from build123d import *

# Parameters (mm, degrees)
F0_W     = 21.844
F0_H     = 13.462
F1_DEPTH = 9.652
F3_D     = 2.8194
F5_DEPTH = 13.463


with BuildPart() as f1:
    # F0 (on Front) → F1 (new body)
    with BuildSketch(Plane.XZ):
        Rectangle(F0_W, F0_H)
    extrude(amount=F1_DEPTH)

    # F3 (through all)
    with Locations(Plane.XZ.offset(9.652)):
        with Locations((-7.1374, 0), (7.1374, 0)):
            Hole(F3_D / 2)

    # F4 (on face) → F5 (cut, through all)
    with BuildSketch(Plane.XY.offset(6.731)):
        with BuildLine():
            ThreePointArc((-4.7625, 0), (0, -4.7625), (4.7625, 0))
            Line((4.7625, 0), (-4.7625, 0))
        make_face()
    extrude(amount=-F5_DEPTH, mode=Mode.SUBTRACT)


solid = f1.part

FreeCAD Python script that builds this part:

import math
import FreeCAD as App
import Part
import Sketcher
Q = App.Units.Quantity


def add_polygon(sketch, points):
    """Adds a closed chain of lines whose ends are joined by coincident constraints."""
    first, n = sketch.GeometryCount, len(points)
    for a, b in zip(points, points[1:] + points[:1]):
        sketch.addGeometry(Part.LineSegment(App.Vector(*a, 0), App.Vector(*b, 0)), False)
    for i in range(n):
        sketch.addConstraint(Sketcher.Constraint("Coincident", first + i, 2, first + (i + 1) % n, 1))

doc = App.newDocument("Part")
body = doc.addObject("PartDesign::Body", "Body")

sketch1 = body.newObject("Sketcher::SketchObject", "Sketch")
sketch1.AttachmentSupport = (doc.getObject("XZ_Plane"), [""])
sketch1.MapMode = "FlatFace"
add_polygon(sketch1, [(-10.922, 6.731), (-10.922, -6.731), (10.922, -6.731), (10.922, 6.731)])
sketch1.addConstraint([
    Sketcher.Constraint("Vertical", 0),
    Sketcher.Constraint("Horizontal", 1),
    Sketcher.Constraint("Vertical", 2),
    Sketcher.Constraint("Horizontal", 3),
    Sketcher.Constraint("Symmetric", 0, 2, 2, 2, -1, 1),
    Sketcher.Constraint("DistanceX", 1, 1, 1, 2, Q("0.86 in")),
    Sketcher.Constraint("DistanceY", 0, 2, 0, 1, Q("0.53 in")),
])
pad1 = body.newObject("PartDesign::Pad", "Pad")
pad1.Profile = sketch1
pad1.Length = Q("0.38 in")

sketch2 = body.newObject("Sketcher::SketchObject", "Sketch001")
sketch2.AttachmentSupport = (doc.getObject("XZ_Plane"), [""])
sketch2.MapMode = "FlatFace"
sketch2.AttachmentOffset = App.Placement(App.Vector(0, 0, 0.38 * 25.4), App.Rotation())
sketch2.addGeometry([
    Part.Circle(App.Vector(-7.1374, 0, 0), App.Vector(0, 0, 1), 1.4097),
    Part.Circle(App.Vector(7.1374, 0, 0), App.Vector(0, 0, 1), 1.4097),
], False)
sketch2.addConstraint([
    Sketcher.Constraint("Equal", 0, 1),
    Sketcher.Constraint("Symmetric", 0, 3, 1, 3, -1, 1),
    Sketcher.Constraint("PointOnObject", 0, 3, -1),
    Sketcher.Constraint("Diameter", 0, Q("0.111 in")),
    Sketcher.Constraint("DistanceX", 0, 3, -1, 1, Q("0.281 in")),
])
doc.recompute()
hole = body.newObject("PartDesign::Hole", "Hole")
hole.Profile = sketch2
hole.ThreadType = "None"
hole.Diameter = Q("0.111 in")
hole.DepthType = "ThroughAll"

sketch3 = body.newObject("Sketcher::SketchObject", "Sketch002")
sketch3.AttachmentSupport = (doc.getObject("XY_Plane"), [""])
sketch3.MapMode = "FlatFace"
sketch3.AttachmentOffset = App.Placement(App.Vector(0, 0, 0.265 * 25.4), App.Rotation())
sketch3.addGeometry([
    Part.ArcOfCircle(Part.Circle(App.Vector(0, 0, 0), App.Vector(0, 0, 1), 4.7625), math.radians(180), math.radians(360)),
    Part.LineSegment(App.Vector(4.7625, 0, 0), App.Vector(-4.7625, 0, 0)),
], False)
sketch3.addConstraint([
    Sketcher.Constraint("Coincident", 0, 1, 1, 2),
    Sketcher.Constraint("Coincident", 1, 1, 0, 2),
    Sketcher.Constraint("Horizontal", 1),
    Sketcher.Constraint("Coincident", 0, 3, -1, 1),
    Sketcher.Constraint("PointOnObject", 0, 1, -1),
    Sketcher.Constraint("Radius", 0, Q("0.1875 in")),
])
pocket1 = body.newObject("PartDesign::Pocket", "Pocket")
pocket1.Profile = sketch3
pocket1.Type = "ThroughAll"

doc.recompute()
